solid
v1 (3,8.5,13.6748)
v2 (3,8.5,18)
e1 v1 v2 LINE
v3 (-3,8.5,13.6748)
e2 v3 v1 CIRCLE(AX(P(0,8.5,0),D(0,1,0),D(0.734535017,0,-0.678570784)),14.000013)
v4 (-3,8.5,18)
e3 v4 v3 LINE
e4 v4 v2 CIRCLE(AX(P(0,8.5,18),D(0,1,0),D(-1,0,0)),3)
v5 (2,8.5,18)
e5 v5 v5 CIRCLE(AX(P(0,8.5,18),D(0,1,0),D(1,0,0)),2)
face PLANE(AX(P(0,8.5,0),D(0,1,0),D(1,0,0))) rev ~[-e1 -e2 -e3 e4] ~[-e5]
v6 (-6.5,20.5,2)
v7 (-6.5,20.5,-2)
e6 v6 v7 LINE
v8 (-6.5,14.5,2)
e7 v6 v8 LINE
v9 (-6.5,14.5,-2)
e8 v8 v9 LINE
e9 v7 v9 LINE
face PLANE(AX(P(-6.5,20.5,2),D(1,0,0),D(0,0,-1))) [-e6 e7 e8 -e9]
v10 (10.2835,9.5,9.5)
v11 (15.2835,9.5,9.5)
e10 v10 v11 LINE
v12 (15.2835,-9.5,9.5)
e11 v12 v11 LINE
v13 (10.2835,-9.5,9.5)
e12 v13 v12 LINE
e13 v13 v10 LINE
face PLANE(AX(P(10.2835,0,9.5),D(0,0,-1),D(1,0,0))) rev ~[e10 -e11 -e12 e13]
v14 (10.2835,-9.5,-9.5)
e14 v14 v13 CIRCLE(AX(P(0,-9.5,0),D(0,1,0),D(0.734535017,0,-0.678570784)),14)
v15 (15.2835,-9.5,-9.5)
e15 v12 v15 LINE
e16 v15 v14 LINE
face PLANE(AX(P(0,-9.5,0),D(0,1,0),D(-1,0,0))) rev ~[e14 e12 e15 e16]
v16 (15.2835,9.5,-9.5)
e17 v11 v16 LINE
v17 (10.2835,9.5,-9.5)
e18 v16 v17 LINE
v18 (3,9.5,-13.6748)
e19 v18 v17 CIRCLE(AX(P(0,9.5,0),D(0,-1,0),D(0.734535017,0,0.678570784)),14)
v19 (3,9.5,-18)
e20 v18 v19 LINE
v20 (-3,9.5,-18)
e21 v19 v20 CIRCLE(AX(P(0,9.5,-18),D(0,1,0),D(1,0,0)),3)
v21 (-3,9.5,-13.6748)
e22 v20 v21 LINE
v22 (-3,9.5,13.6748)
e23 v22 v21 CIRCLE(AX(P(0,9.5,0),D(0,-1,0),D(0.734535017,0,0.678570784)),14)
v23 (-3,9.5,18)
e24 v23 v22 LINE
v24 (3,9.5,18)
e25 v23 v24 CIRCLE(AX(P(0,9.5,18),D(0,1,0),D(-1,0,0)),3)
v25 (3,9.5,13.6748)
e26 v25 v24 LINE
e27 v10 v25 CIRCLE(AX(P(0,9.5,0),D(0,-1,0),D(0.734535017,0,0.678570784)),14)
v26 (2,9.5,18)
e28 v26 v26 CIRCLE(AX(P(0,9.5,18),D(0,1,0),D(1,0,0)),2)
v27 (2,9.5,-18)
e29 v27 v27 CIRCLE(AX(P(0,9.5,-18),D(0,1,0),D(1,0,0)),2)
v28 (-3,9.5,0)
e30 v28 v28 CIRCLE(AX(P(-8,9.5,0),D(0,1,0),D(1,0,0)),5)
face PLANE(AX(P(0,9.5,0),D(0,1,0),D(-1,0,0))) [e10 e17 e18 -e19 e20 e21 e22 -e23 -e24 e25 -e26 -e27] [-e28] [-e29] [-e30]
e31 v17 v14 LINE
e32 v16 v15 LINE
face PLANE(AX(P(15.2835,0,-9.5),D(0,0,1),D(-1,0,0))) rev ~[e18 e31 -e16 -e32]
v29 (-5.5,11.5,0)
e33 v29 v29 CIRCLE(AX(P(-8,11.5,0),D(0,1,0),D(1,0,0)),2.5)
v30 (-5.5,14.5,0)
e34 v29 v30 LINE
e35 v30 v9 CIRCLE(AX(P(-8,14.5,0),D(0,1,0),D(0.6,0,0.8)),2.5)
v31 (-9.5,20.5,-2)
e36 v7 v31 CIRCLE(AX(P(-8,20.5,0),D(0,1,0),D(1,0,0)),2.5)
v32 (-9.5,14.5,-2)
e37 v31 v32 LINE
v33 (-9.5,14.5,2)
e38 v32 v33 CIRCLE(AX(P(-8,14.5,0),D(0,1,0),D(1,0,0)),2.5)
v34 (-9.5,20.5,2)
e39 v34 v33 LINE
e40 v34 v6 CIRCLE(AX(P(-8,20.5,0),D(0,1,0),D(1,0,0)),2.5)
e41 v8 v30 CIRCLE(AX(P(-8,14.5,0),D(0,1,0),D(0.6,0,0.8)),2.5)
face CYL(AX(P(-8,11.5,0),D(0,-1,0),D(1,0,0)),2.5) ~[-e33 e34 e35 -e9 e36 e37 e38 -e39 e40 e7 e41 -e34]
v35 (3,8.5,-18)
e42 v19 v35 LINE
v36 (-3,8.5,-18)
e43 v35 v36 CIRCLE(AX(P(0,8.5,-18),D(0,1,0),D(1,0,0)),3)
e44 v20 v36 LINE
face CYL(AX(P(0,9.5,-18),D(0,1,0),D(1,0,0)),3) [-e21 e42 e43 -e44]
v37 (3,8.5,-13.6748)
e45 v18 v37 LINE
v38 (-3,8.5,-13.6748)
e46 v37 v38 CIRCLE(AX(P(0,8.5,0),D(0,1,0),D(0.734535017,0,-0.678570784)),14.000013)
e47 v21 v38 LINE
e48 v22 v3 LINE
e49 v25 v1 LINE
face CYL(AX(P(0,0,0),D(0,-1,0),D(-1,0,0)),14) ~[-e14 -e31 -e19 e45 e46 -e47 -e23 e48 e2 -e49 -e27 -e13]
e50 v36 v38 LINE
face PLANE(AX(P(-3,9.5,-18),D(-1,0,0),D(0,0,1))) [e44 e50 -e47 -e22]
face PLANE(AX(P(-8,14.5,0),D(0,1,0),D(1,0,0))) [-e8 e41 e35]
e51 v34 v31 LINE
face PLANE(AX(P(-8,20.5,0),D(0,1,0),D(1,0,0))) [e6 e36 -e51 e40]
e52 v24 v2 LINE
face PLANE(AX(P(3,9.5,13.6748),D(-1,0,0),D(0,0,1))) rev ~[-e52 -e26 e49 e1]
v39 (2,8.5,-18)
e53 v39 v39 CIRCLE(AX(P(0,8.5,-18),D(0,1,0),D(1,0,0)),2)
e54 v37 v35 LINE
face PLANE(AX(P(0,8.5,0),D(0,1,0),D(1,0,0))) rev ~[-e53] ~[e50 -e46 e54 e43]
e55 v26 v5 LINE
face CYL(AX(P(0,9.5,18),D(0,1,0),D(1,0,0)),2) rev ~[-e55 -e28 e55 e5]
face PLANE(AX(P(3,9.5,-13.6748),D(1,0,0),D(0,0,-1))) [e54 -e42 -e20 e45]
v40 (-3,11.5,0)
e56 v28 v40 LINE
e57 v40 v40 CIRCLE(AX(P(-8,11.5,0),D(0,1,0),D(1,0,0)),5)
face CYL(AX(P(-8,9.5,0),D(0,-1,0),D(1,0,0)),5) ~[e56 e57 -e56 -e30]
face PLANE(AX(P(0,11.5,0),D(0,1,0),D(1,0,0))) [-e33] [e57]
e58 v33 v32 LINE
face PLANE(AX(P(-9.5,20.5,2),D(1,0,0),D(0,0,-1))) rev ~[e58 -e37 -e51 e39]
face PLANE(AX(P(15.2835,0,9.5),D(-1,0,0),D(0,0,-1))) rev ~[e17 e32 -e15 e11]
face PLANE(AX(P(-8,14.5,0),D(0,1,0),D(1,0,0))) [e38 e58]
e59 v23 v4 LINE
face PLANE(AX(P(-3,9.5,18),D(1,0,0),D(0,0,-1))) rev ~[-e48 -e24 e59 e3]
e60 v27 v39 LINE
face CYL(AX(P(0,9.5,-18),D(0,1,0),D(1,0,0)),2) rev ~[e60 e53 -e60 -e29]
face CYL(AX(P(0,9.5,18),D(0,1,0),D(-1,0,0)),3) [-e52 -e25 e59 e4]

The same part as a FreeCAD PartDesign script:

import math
import FreeCAD as App
import Part
import Sketcher
from FreeCAD import Vector
Q = App.Units.Quantity

doc = App.newDocument("Part")
body = doc.addObject("PartDesign::Body", "Body")

sketch1 = body.newObject("Sketcher::SketchObject", "Sketch")
sketch1.AttachmentSupport = (doc.getObject("XZ_Plane"), [""])
sketch1.MapMode = "FlatFace"
sketch1.addGeometry([
    Part.ArcOfCircle(Part.Circle(Vector(0, 0, 0), Vector(0, 0, 1), 14), math.radians(43), math.radians(317)),
    Part.LineSegment(Vector(10, 10, 0), Vector(15, 10, 0)),
    Part.LineSegment(Vector(15, 10, 0), Vector(15, -10, 0)),
    Part.LineSegment(Vector(15, -10, 0), Vector(10, -10, 0)),
], False)
sketch1.addConstraint([
    Sketcher.Constraint("Coincident", 0, 1, 1, 1),
    Sketcher.Constraint("Coincident", 1, 2, 2, 1),
    Sketcher.Constraint("Coincident", 2, 2, 3, 1),
    Sketcher.Constraint("Coincident", 3, 2, 0, 2),
    Sketcher.Constraint("Horizontal", 1),
    Sketcher.Constraint("Vertical", 2),
    Sketcher.Constraint("Horizontal", 3),
    Sketcher.Constraint("Coincident", 0, 3, -1, 1),
    Sketcher.Constraint("Vertical", 0, 1, 3, 2),
    Sketcher.Constraint("Radius", 0, Q("14 mm")),
    Sketcher.Constraint("DistanceX", 1, 1, 1, 2, Q("5 mm")),
    Sketcher.Constraint("DistanceY", 2, 2, 2, 1, Q("19 mm")),
])
pad1 = body.newObject("PartDesign::Pad", "Pad")
pad1.Profile = sketch1
pad1.Length = 19
pad1.Midplane = True

sketch2 = body.newObject("Sketcher::SketchObject", "Sketch001")
sketch2.AttachmentSupport = (doc.getObject("XZ_Plane"), [""])
sketch2.MapMode = "FlatFace"
sketch2.AttachmentOffset = App.Placement(Vector(0, 0, -9.5), App.Rotation())
sketch2.addGeometry([
    Part.ArcOfCircle(Part.Circle(Vector(0, 0, 0), Vector(0, 0, 1), 14), math.radians(78), math.radians(102)),
    Part.LineSegment(Vector(-3, 13.7, 0), Vector(-3, 18, 0)),
    Part.ArcOfCircle(Part.Circle(Vector(0, 18, 0), Vector(0, 0, 1), 3), math.radians(0), math.radians(180)),
    Part.LineSegment(Vector(3, 18, 0), Vector(3, 13.7, 0)),
    Part.Circle(Vector(0, 18, 0), Vector(0, 0, 1), 2),
    Part.ArcOfCircle(Part.Circle(Vector(0, 0, 0), Vector(0, 0, 1), 14), math.radians(-102), math.radians(-78)),
    Part.LineSegment(Vector(3, -13.7, 0), Vector(3, -18, 0)),
    Part.ArcOfCircle(Part.Circle(Vector(0, -18, 0), Vector(0, 0, 1), 3), math.radians(180), math.radians(360)),
    Part.LineSegment(Vector(-3, -18, 0), Vector(-3, -13.7, 0)),
    Part.Circle(Vector(0, -18, 0), Vector(0, 0, 1), 2),
], False)
sketch2.addConstraint([
    Sketcher.Constraint("Coincident", 0, 2, 1, 1),
    Sketcher.Constraint("Tangent", 1, 2, 2, 2),
    Sketcher.Constraint("Tangent", 2, 1, 3, 1),
    Sketcher.Constraint("Coincident", 3, 2, 0, 1),
    Sketcher.Constraint("Coincident", 5, 2, 6, 1),
    Sketcher.Constraint("Tangent", 6, 2, 7, 2),
    Sketcher.Constraint("Tangent", 7, 1, 8, 1),
    Sketcher.Constraint("Coincident", 8, 2, 5, 1),
    Sketcher.Constraint("Vertical", 1),
    Sketcher.Constraint("Vertical", 3),
    Sketcher.Constraint("Vertical", 6),
    Sketcher.Constraint("Vertical", 8),
    Sketcher.Constraint("Coincident", 0, 3, -1, 1),
    Sketcher.Constraint("Coincident", 5, 3, -1, 1),
    Sketcher.Constraint("Coincident", 4, 3, 2, 3),
    Sketcher.Constraint("Coincident", 9, 3, 7, 3),
    Sketcher.Constraint("Equal", 0, 5),
    Sketcher.Constraint("Equal", 2, 7),
    Sketcher.Constraint("Equal", 4, 9),
    Sketcher.Constraint("Symmetric", 2, 3, 7, 3, -1, 1),
    Sketcher.Constraint("PointOnObject", 2, 3, -2),
    Sketcher.Constraint("Diameter", 4, Q("4 mm")),
    Sketcher.Constraint("Radius", 2, Q("3 mm")),
    Sketcher.Constraint("Radius", 0, Q("14 mm")),
    Sketcher.Constraint("DistanceY", -1, 1, 2, 3, Q("18 mm")),
])
pad2 = body.newObject("PartDesign::Pad", "Pad001")
pad2.Profile = sketch2
pad2.Length = 1

sketch3 = body.newObject("Sketcher::SketchObject", "Sketch002")
sketch3.AttachmentSupport = (doc.getObject("XZ_Plane"), [""])
sketch3.MapMode = "FlatFace"
sketch3.AttachmentOffset = App.Placement(Vector(0, 0, -9.5), App.Rotation())
sketch3.addGeometry(Part.Circle(Vector(-8, 0, 0), Vector(0, 0, 1), 5), False)
sketch3.addConstraint([
    Sketcher.Constraint("PointOnObject", 0, 3, -1),
    Sketcher.Constraint("Diameter", 0, Q("10 mm")),
    Sketcher.Constraint("DistanceX", 0, 3, -1, 1, Q("8 mm")),
])
pad3 = body.newObject("PartDesign::Pad", "Pad002")
pad3.Profile = sketch3
pad3.Length = 2
pad3.Reversed = True

sketch4 = body.newObject("Sketcher::SketchObject", "Sketch003")
sketch4.AttachmentSupport = (doc.getObject("XZ_Plane"), [""])
sketch4.MapMode = "FlatFace"
sketch4.AttachmentOffset = App.Placement(Vector(0, 0, -11.5), App.Rotation())
sketch4.addGeometry(Part.Circle(Vector(-8, 0, 0), Vector(0, 0, 1), 2.5), False)
sketch4.addConstraint([
    Sketcher.Constraint("PointOnObject", 0, 3, -1),
    Sketcher.Constraint("Diameter", 0, Q("5 mm")),
    Sketcher.Constraint("DistanceX", 0, 3, -1, 1, Q("8 mm")),
])
pad4 = body.newObject("PartDesign::Pad", "Pad003")
pad4.Profile = sketch4
pad4.Length = 9
pad4.Reversed = True

sketch5 = body.newObject("Sketcher::SketchObject", "Sketch004")
sketch5.AttachmentSupport = (doc.getObject("XZ_Plane"), [""])
sketch5.MapMode = "FlatFace"
sketch5.AttachmentOffset = App.Placement(Vector(0, 0, -20.5), App.Rotation())
sketch5.addGeometry([
    Part.ArcOfCircle(Part.Circle(Vector(-8, 0, 0), Vector(0, 0, 1), 2.5), math.radians(-53), math.radians(53)),
    Part.LineSegment(Vector(-6.5, -2, 0), Vector(-6.5, 2, 0)),
    Part.LineSegment(Vector(-9.5, 2, 0), Vector(-9.5, -2, 0)),
    Part.ArcOfCircle(Part.Circle(Vector(-8, 0, 0), Vector(0, 0, 1), 2.5), math.radians(127), math.radians(233)),
], False)
sketch5.addConstraint([
    Sketcher.Constraint("Coincident", 0, 1, 1, 1),
    Sketcher.Constraint("Coincident", 1, 2, 0, 2),
    Sketcher.Constraint("Coincident", 2, 1, 3, 1),
    Sketcher.Constraint("Coincident", 3, 2, 2, 2),
    Sketcher.Constraint("Vertical", 1),
    Sketcher.Constraint("Vertical", 2),
    Sketcher.Constraint("Coincident", 3, 3, 0, 3),
    Sketcher.Constraint("Equal", 0, 3),
    Sketcher.Constraint("PointOnObject", 0, 3, -1),
    Sketcher.Constraint("Horizontal", 1, 2, 2, 1),
    Sketcher.Constraint("DistanceX", 2, 1, 1, 2, Q("3 mm")),
    Sketcher.Constraint("Radius", 0, Q("2.5 mm")),
    Sketcher.Constraint("DistanceX", 0, 3, -1, 1, Q("8 mm")),
])
pocket1 = body.newObject("PartDesign::Pocket", "Pocket")
pocket1.Profile = sketch5
pocket1.Length = 6
pocket1.Reversed = True

doc.recompute()
